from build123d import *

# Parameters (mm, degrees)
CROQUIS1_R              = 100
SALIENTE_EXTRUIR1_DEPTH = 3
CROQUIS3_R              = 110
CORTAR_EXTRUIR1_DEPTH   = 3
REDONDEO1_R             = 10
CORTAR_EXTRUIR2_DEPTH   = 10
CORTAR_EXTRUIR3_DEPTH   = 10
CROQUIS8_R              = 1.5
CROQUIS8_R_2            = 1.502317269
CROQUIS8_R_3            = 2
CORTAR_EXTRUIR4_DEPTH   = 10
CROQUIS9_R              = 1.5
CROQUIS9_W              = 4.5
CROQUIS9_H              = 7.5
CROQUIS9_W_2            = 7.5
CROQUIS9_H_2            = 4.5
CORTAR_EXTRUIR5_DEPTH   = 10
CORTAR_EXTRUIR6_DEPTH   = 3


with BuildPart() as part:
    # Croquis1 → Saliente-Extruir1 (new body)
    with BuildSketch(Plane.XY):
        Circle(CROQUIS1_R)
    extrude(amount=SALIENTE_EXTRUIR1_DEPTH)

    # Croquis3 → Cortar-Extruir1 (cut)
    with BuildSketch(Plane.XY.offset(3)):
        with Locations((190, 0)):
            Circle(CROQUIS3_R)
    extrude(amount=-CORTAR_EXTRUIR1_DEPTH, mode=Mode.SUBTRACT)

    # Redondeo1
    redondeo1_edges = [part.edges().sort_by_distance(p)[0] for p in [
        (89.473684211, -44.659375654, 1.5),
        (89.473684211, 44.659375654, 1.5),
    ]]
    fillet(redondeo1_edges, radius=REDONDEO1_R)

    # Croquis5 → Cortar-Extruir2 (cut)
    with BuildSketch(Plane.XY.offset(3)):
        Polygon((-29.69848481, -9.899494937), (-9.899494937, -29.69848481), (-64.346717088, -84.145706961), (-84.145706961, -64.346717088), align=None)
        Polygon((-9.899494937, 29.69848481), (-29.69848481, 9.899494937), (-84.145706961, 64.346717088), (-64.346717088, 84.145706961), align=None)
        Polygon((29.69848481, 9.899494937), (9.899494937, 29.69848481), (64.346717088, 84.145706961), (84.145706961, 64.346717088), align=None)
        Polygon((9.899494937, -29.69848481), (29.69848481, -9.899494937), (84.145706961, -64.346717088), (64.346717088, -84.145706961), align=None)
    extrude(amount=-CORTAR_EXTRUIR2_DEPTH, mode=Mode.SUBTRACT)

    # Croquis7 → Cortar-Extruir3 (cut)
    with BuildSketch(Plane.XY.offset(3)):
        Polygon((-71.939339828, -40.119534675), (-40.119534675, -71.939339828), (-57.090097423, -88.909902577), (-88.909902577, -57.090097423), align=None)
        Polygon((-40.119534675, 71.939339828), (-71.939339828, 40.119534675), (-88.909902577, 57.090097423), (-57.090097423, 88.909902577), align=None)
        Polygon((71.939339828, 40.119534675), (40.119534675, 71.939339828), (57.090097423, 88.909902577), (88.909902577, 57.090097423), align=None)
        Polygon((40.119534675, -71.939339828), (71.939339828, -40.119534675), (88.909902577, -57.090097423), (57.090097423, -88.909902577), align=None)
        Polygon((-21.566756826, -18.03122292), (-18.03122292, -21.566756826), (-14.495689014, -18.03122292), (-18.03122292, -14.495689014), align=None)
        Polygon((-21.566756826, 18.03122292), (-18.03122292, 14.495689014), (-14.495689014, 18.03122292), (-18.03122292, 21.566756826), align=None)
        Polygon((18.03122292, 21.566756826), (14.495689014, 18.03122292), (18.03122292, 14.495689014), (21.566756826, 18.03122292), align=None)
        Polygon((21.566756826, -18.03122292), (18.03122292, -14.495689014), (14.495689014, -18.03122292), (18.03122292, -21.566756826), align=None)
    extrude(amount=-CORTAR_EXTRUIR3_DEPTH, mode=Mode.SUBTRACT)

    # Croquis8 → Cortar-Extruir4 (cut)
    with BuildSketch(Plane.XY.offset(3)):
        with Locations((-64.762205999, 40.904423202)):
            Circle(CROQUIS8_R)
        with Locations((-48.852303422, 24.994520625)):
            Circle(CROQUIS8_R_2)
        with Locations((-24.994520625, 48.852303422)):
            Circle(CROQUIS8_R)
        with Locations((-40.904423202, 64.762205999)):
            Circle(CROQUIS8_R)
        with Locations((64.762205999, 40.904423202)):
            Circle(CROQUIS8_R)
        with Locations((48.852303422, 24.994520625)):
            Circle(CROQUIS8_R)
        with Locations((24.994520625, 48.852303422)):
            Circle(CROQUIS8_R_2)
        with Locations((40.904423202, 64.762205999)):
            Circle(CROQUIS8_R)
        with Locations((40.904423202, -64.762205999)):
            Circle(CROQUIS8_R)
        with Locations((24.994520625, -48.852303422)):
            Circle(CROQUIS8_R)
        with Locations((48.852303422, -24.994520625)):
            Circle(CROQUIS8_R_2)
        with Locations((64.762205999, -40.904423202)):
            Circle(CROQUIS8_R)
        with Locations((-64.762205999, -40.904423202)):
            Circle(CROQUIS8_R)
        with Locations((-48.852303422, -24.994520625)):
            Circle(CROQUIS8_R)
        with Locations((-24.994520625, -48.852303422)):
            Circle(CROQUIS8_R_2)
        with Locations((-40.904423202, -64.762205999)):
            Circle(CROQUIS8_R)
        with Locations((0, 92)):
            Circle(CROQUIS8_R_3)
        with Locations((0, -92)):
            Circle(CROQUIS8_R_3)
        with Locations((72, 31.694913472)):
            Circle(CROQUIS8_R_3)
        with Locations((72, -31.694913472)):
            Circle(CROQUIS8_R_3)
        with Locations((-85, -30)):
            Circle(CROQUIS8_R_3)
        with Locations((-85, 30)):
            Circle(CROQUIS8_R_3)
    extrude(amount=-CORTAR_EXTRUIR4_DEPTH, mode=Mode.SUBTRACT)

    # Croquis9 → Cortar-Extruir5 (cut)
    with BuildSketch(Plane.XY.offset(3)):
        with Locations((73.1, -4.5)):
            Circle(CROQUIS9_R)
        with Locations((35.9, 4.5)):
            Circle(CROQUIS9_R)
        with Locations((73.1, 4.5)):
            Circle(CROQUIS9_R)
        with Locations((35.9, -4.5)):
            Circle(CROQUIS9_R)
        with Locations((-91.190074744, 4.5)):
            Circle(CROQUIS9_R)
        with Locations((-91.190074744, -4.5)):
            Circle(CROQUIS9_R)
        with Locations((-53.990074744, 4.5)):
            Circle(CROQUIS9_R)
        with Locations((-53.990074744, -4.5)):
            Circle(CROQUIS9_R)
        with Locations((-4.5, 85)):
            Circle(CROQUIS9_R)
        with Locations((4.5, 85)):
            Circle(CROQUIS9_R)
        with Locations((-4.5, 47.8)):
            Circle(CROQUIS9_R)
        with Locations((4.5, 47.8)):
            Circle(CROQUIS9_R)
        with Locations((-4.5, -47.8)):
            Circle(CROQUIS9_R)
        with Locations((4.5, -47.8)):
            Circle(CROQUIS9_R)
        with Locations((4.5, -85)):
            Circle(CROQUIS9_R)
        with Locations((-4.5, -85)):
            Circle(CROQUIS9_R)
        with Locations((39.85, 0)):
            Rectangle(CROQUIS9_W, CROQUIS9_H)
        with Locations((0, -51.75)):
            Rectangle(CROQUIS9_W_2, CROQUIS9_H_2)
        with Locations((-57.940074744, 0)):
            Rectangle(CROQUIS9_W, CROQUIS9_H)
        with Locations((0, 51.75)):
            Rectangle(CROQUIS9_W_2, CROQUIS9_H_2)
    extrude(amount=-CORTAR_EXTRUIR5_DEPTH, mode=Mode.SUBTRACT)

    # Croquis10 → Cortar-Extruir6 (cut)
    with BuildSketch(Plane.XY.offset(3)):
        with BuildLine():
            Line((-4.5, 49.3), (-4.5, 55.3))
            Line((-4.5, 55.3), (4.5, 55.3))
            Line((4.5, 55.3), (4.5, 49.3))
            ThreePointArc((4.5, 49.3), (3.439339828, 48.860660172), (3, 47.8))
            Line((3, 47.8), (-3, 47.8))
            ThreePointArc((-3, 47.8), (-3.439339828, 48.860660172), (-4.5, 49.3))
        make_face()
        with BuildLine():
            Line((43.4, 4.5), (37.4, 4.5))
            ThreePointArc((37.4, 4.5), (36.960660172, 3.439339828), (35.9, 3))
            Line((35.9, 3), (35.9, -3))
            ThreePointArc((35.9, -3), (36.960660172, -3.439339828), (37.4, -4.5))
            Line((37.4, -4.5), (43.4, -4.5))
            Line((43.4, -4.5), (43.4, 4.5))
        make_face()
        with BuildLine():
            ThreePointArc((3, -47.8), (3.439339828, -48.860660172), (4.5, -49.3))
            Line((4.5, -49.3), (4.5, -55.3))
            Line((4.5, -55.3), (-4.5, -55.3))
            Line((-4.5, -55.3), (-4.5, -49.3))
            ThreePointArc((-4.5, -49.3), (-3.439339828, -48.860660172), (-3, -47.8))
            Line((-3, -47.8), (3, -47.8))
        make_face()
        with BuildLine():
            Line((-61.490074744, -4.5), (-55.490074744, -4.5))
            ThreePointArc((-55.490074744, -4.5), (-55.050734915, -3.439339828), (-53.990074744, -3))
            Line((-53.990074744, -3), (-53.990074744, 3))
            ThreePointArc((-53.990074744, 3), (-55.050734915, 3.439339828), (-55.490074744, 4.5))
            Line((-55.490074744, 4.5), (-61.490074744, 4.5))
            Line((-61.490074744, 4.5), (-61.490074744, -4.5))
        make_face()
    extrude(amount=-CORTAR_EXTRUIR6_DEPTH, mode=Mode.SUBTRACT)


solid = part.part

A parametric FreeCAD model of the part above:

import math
import FreeCAD as App
import Part
import Sketcher

V = App.Vector


def edges_at(feature, points):
    """Names of the edges that pass closest to the given points."""
    edges = feature.Shape.Edges
    near = lambda p: min(range(len(edges)), key=lambda i: edges[i].distToShape(Part.Vertex(*p))[0])
    return sorted({f"Edge{near(p) + 1}" for p in points})

doc = App.newDocument("Part")
body = doc.addObject("PartDesign::Body", "Body")

# Sketch on XY plane
sketch1 = body.newObject("Sketcher::SketchObject", "Sketch")
sketch1.AttachmentSupport = (doc.getObject("XY_Plane"), [""])
sketch1.MapMode = "FlatFace"
sketch1.addGeometry(Part.Circle(V(0, 0, 0), V(0, 0, 1), 100), False)
sketch1.addConstraint([
    Sketcher.Constraint("Coincident", 0, 3, -1, 1),
    Sketcher.Constraint("Diameter", 0, 200.0),
])
pad1 = body.newObject("PartDesign::Pad", "Pad")
pad1.Profile = sketch1
pad1.Length = 3

# Sketch on XY plane
sketch2 = body.newObject("Sketcher::SketchObject", "Sketch001")
sketch2.AttachmentSupport = (doc.getObject("XY_Plane"), [""])
sketch2.MapMode = "FlatFace"
sketch2.AttachmentOffset = App.Placement(V(0, 0, 3), App.Rotation())
sketch2.addGeometry(Part.Circle(V(190, 0, 0), V(0, 0, 1), 110), False)
sketch2.addConstraint([
    Sketcher.Constraint("PointOnObject", 0, 3, -1),
    Sketcher.Constraint("Diameter", 0, 220.0),
    Sketcher.Constraint("DistanceX", -1, 1, 0, 3, 190.0),
])
pocket1 = body.newObject("PartDesign::Pocket", "Pocket")
pocket1.Profile = sketch2
pocket1.Length = 3
doc.recompute()

fillet = body.newObject("PartDesign::Fillet", "Fillet")
fillet.Base = (pocket1, edges_at(pocket1, [(89.474, -44.659, 1.5), (89.474, 44.659, 1.5)]))
fillet.Radius = 10

# Sketch on XY plane
sketch3 = body.newObject("Sketcher::SketchObject", "Sketch002")
sketch3.AttachmentSupport = (doc.getObject("XY_Plane"), [""])
sketch3.MapMode = "FlatFace"
sketch3.AttachmentOffset = App.Placement(V(0, 0, 3), App.Rotation())
sketch3.addGeometry([
    Part.LineSegment(V(-10, -30, 0), V(-30, -10, 0)),  # 0
    Part.LineSegment(V(-30, -10, 0), V(-84, -64, 0)),  # 1
    Part.LineSegment(V(-84, -64, 0), V(-64, -84, 0)),  # 2
    Part.LineSegment(V(-64, -84, 0), V(-10, -30, 0)),  # 3
    Part.LineSegment(V(-30, 10, 0), V(-10, 30, 0)),  # 4
    Part.LineSegment(V(-10, 30, 0), V(-64, 84, 0)),  # 5
    Part.LineSegment(V(-64, 84, 0), V(-84, 64, 0)),  # 6
    Part.LineSegment(V(-84, 64, 0), V(-30, 10, 0)),  # 7
    Part.LineSegment(V(10, 30, 0), V(30, 10, 0)),  # 8
    Part.LineSegment(V(30, 10, 0), V(84, 64, 0)),  # 9
    Part.LineSegment(V(84, 64, 0), V(64, 84, 0)),  # 10
    Part.LineSegment(V(64, 84, 0), V(10, 30, 0)),  # 11
    Part.LineSegment(V(30, -10, 0), V(10, -30, 0)),  # 12
    Part.LineSegment(V(10, -30, 0), V(64, -84, 0)),  # 13
    Part.LineSegment(V(64, -84, 0), V(84, -64, 0)),  # 14
    Part.LineSegment(V(84, -64, 0), V(30, -10, 0)),  # 15
], False)
sketch3.addConstraint([
    Sketcher.Constraint("Coincident", 0, 2, 1, 1),
    Sketcher.Constraint("Coincident", 1, 2, 2, 1),
    Sketcher.Constraint("Coincident", 2, 2, 3, 1),
    Sketcher.Constraint("Coincident", 3, 2, 0, 1),
    Sketcher.Constraint("Coincident", 4, 2, 5, 1),
    Sketcher.Constraint("Coincident", 5, 2, 6, 1),
    Sketcher.Constraint("Coincident", 6, 2, 7, 1),
    Sketcher.Constraint("Coincident", 7, 2, 4, 1),
    Sketcher.Constraint("Coincident", 8, 2, 9, 1),
    Sketcher.Constraint("Coincident", 9, 2, 10, 1),
    Sketcher.Constraint("Coincident", 10, 2, 11, 1),
    Sketcher.Constraint("Coincident", 11, 2, 8, 1),
    Sketcher.Constraint("Coincident", 12, 2, 13, 1),
    Sketcher.Constraint("Coincident", 13, 2, 14, 1),
    Sketcher.Constraint("Coincident", 14, 2, 15, 1),
    Sketcher.Constraint("Coincident", 15, 2, 12, 1),
    Sketcher.Constraint("Symmetric", 0, 2, 8, 2, -1, 1),
    Sketcher.Constraint("Symmetric", 1, 2, 9, 2, -1, 1),
    Sketcher.Constraint("Symmetric", 2, 2, 10, 2, -1, 1),
    Sketcher.Constraint("Symmetric", 3, 2, 11, 2, -1, 1),
    Sketcher.Constraint("Symmetric", 4, 2, 12, 2, -1, 1),
    Sketcher.Constraint("Symmetric", 5, 2, 13, 2, -1, 1),
    Sketcher.Constraint("Symmetric", 6, 2, 14, 2, -1, 1),
    Sketcher.Constraint("Symmetric", 7, 2, 15, 2, -1, 1),
    Sketcher.Constraint("Symmetric", 7, 2, 8, 2, -2),
    Sketcher.Constraint("Symmetric", 6, 2, 9, 2, -2),
    Sketcher.Constraint("Symmetric", 5, 2, 10, 2, -2),
    Sketcher.Constraint("Symmetric", 4, 2, 11, 2, -2),
    Sketcher.Constraint("Perpendicular", 0, 1),
    Sketcher.Constraint("Perpendicular", 1, 2),
    Sketcher.Constraint("Perpendicular", 2, 3),
    Sketcher.Constraint("Parallel", 3, 4),
    Sketcher.Constraint("Distance", 0, 28.0),
    Sketcher.Constraint("Distance", 1, 77.0),
    Sketcher.Constraint("DistanceY", 1, 2, 4, 2, 94.045202),
    Sketcher.Constraint("DistanceX", 5, 2, 8, 2, 94.045202),
])
pocket2 = body.newObject("PartDesign::Pocket", "Pocket001")
pocket2.Profile = sketch3
pocket2.Length = 10

# Sketch on XY plane
sketch4 = body.newObject("Sketcher::SketchObject", "Sketch003")
sketch4.AttachmentSupport = (doc.getObject("XY_Plane"), [""])
sketch4.MapMode = "FlatFace"
sketch4.AttachmentOffset = App.Placement(V(0, 0, 3), App.Rotation())
sketch4.addGeometry([
    Part.LineSegment(V(-40, -72, 0), V(-72, -40, 0)),  # 0
    Part.LineSegment(V(-72, -40, 0), V(-89, -57, 0)),  # 1
    Part.LineSegment(V(-89, -57, 0), V(-57, -89, 0)),  # 2
    Part.LineSegment(V(-57, -89, 0), V(-40, -72, 0)),  # 3
    Part.LineSegment(V(-72, 40, 0), V(-40, 72, 0)),  # 4
    Part.LineSegment(V(-40, 72, 0), V(-57, 89, 0)),  # 5
    Part.LineSegment(V(-57, 89, 0), V(-89, 57, 0)),  # 6
    Part.LineSegment(V(-89, 57, 0), V(-72, 40, 0)),  # 7
    Part.LineSegment(V(40, 72, 0), V(72, 40, 0)),  # 8
    Part.LineSegment(V(72, 40, 0), V(89, 57, 0)),  # 9
    Part.LineSegment(V(89, 57, 0), V(57, 89, 0)),  # 10
    Part.LineSegment(V(57, 89, 0), V(40, 72, 0)),  # 11
    Part.LineSegment(V(72, -40, 0), V(40, -72, 0)),  # 12
    Part.LineSegment(V(40, -72, 0), V(57, -89, 0)),  # 13
    Part.LineSegment(V(57, -89, 0), V(89, -57, 0)),  # 14
    Part.LineSegment(V(89, -57, 0), V(72, -40, 0)),  # 15
    Part.LineSegment(V(-22, -18, 0), V(-18, -22, 0)),  # 16
    Part.LineSegment(V(-18, -22, 0), V(-14, -18, 0)),  # 17
    Part.LineSegment(V(-14, -18, 0), V(-18, -14, 0)),  # 18
    Part.LineSegment(V(-18, -14, 0), V(-22, -18, 0)),  # 19
    Part.LineSegment(V(-22, 18, 0), V(-18, 14, 0)),  # 20
    Part.LineSegment(V(-18, 14, 0), V(-14, 18, 0)),  # 21
    Part.LineSegment(V(-14, 18, 0), V(-18, 22, 0)),  # 22
    Part.LineSegment(V(-18, 22, 0), V(-22, 18, 0)),  # 23
    Part.LineSegment(V(18, 22, 0), V(14, 18, 0)),  # 24
    Part.LineSegment(V(14, 18, 0), V(18, 14, 0)),  # 25
    Part.LineSegment(V(18, 14, 0), V(22, 18, 0)),  # 26
    Part.LineSegment(V(22, 18, 0), V(18, 22, 0)),  # 27
    Part.LineSegment(V(22, -18, 0), V(18, -14, 0)),  # 28
    Part.LineSegment(V(18, -14, 0), V(14, -18, 0)),  # 29
    Part.LineSegment(V(14, -18, 0), V(18, -22, 0)),  # 30
    Part.LineSegment(V(18, -22, 0), V(22, -18, 0)),  # 31
], False)
sketch4.addConstraint([
    Sketcher.Constraint("Coincident", 0, 2, 1, 1),
    Sketcher.Constraint("Coincident", 1, 2, 2, 1),
    Sketcher.Constraint("Coincident", 2, 2, 3, 1),
    Sketcher.Constraint("Coincident", 3, 2, 0, 1),
    Sketcher.Constraint("Coincident", 4, 2, 5, 1),
    Sketcher.Constraint("Coincident", 5, 2, 6, 1),
    Sketcher.Constraint("Coincident", 6, 2, 7, 1),
    Sketcher.Constraint("Coincident", 7, 2, 4, 1),
    Sketcher.Constraint("Coincident", 8, 2, 9, 1),
    Sketcher.Constraint("Coincident", 9, 2, 10, 1),
    Sketcher.Constraint("Coincident", 10, 2, 11, 1),
    Sketcher.Constraint("Coincident", 11, 2, 8, 1),
    Sketcher.Constraint("Coincident", 12, 2, 13, 1),
    Sketcher.Constraint("Coincident", 13, 2, 14, 1),
    Sketcher.Constraint("Coincident", 14, 2, 15, 1),
    Sketcher.Constraint("Coincident", 15, 2, 12, 1),
    Sketcher.Constraint("Coincident", 16, 2, 17, 1),
    Sketcher.Constraint("Coincident", 17, 2, 18, 1),
    Sketcher.Constraint("Coincident", 18, 2, 19, 1),
    Sketcher.Constraint("Coincident", 19, 2, 16, 1),
    Sketcher.Constraint("Coincident", 20, 2, 21, 1),
    Sketcher.Constraint("Coincident", 21, 2, 22, 1),
    Sketcher.Constraint("Coincident", 22, 2, 23, 1),
    Sketcher.Constraint("Coincident", 23, 2, 20, 1),
    Sketcher.Constraint("Coincident", 24, 2, 25, 1),
    Sketcher.Constraint("Coincident", 25, 2, 26, 1),
    Sketcher.Constraint("Coincident", 26, 2, 27, 1),
    Sketcher.Constraint("Coincident", 27, 2, 24, 1),
    Sketcher.Constraint("Coincident", 28, 2, 29, 1),
    Sketcher.Constraint("Coincident", 29, 2, 30, 1),
    Sketcher.Constraint("Coincident", 30, 2, 31, 1),
    Sketcher.Constraint("Coincident", 31, 2, 28, 1),
    Sketcher.Constraint("Symmetric", 0, 2, 8, 2, -1, 1),
    Sketcher.Constraint("Symmetric", 1, 2, 9, 2, -1, 1),
    Sketcher.Constraint("Symmetric", 2, 2, 10, 2, -1, 1),
    Sketcher.Constraint("Symmetric", 3, 2, 11, 2, -1, 1),
    Sketcher.Constraint("Symmetric", 4, 2, 12, 2, -1, 1),
    Sketcher.Constraint("Symmetric", 5, 2, 13, 2, -1, 1),
    Sketcher.Constraint("Symmetric", 6, 2, 14, 2, -1, 1),
    Sketcher.Constraint("Symmetric", 7, 2, 15, 2, -1, 1),
    Sketcher.Constraint("Symmetric", 17, 2, 24, 2, -1, 1),
    Sketcher.Constraint("Symmetric", 18, 2, 25, 2, -1, 1),
    Sketcher.Constraint("Symmetric", 19, 2, 26, 2, -1, 1),
    Sketcher.Constraint("Symmetric", 16, 2, 27, 2, -1, 1),
    Sketcher.Constraint("Symmetric", 20, 2, 28, 2, -1, 1),
    Sketcher.Constraint("Symmetric", 21, 2, 29, 2, -1, 1),
    Sketcher.Constraint("Symmetric", 22, 2, 30, 2, -1, 1),
    Sketcher.Constraint("Symmetric", 23, 2, 31, 2, -1, 1),
    Sketcher.Constraint("Symmetric", 7, 2, 8, 2, -2),
    Sketcher.Constraint("Symmetric", 6, 2, 9, 2, -2),
    Sketcher.Constraint("Symmetric", 5, 2, 10, 2, -2),
    Sketcher.Constraint("Symmetric", 4, 2, 11, 2, -2),
    Sketcher.Constraint("Symmetric", 21, 2, 24, 2, -2),
    Sketcher.Constraint("Symmetric", 20, 2, 25, 2, -2),
    Sketcher.Constraint("Symmetric", 23, 2, 26, 2, -2),
    Sketcher.Constraint("Symmetric", 22, 2, 27, 2, -2),
    Sketcher.Constraint("Perpendicular", 0, 1),
    Sketcher.Constraint("Perpendicular", 1, 2),
    Sketcher.Constraint("Perpendicular", 2, 3),
    Sketcher.Constraint("Parallel", 3, 4),
    Sketcher.Constraint("Parallel", 15, 16),
    Sketcher.Constraint("Perpendicular", 16, 17),
    Sketcher.Constraint("Perpendicular", 17, 18),
    Sketcher.Constraint("Perpendicular", 18, 19),
    Sketcher.Constraint("Horizontal", 17, 2, 19, 2),
    Sketcher.Constraint("Distance", 0, 45.0),
    Sketcher.Constraint("Distance", 1, 24.0),
    Sketcher.Constraint("Distance", 16, 5.0),
    Sketcher.Constraint("DistanceY", 1, 2, 5, 2, 146.0),
    Sketcher.Constraint("DistanceX", 5, 2, 9, 2, 146.0),
    Sketcher.Constraint("DistanceX", 17, 2, -1, 1, 14.495689),
    Sketcher.Constraint("DistanceY", 18, 2, -1, 1, 14.495689),
])
pocket3 = body.newObject("PartDesign::Pocket", "Pocket002")
pocket3.Profile = sketch4
pocket3.Length = 10

# Sketch on XY plane
sketch5 = body.newObject("Sketcher::SketchObject", "Sketch004")
sketch5.AttachmentSupport = (doc.getObject("XY_Plane"), [""])
sketch5.MapMode = "FlatFace"
sketch5.AttachmentOffset = App.Placement(V(0, 0, 3), App.Rotation())
sketch5.addGeometry([
    Part.Circle(V(-64.8, 40.9, 0), V(0, 0, 1), 1.5),  # 0
    Part.Circle(V(-48.9, 25, 0), V(0, 0, 1), 1.5),  # 1
    Part.Circle(V(-25, 48.9, 0), V(0, 0, 1), 1.5),  # 2
    Part.Circle(V(-40.9, 64.8, 0), V(0, 0, 1), 1.5),  # 3
    Part.Circle(V(64.8, 40.9, 0), V(0, 0, 1), 1.5),  # 4
    Part.Circle(V(48.9, 25, 0), V(0, 0, 1), 1.5),  # 5
    Part.Circle(V(25, 48.9, 0), V(0, 0, 1), 1.5),  # 6
    Part.Circle(V(40.9, 64.8, 0), V(0, 0, 1), 1.5),  # 7
    Part.Circle(V(40.9, -64.8, 0), V(0, 0, 1), 1.5),  # 8
    Part.Circle(V(25, -48.9, 0), V(0, 0, 1), 1.5),  # 9
    Part.Circle(V(48.9, -25, 0), V(0, 0, 1), 1.5),  # 10
    Part.Circle(V(64.8, -40.9, 0), V(0, 0, 1), 1.5),  # 11
    Part.Circle(V(-64.8, -40.9, 0), V(0, 0, 1), 1.5),  # 12
    Part.Circle(V(-48.9, -25, 0), V(0, 0, 1), 1.5),  # 13
    Part.Circle(V(-25, -48.9, 0), V(0, 0, 1), 1.5),  # 14
    Part.Circle(V(-40.9, -64.8, 0), V(0, 0, 1), 1.5),  # 15
    Part.Circle(V(0, 92, 0), V(0, 0, 1), 2),  # 16
    Part.Circle(V(0, -92, 0), V(0, 0, 1), 2),  # 17
    Part.Circle(V(72, 31.7, 0), V(0, 0, 1), 2),  # 18
    Part.Circle(V(72, -31.7, 0), V(0, 0, 1), 2),  # 19
    Part.Circle(V(-85, -30, 0), V(0, 0, 1), 2),  # 20
    Part.Circle(V(-85, 30, 0), V(0, 0, 1), 2),  # 21
], False)
sketch5.addConstraint([
    Sketcher.Constraint("Equal", 0, 2),
    Sketcher.Constraint("Equal", 2, 3),
    Sketcher.Constraint("Equal", 3, 4),
    Sketcher.Constraint("Equal", 4, 5),
    Sketcher.Constraint("Equal", 1, 6),
    Sketcher.Constraint("Equal", 5, 7),
    Sketcher.Constraint("Equal", 7, 8),
    Sketcher.Constraint("Equal", 8, 9),
    Sketcher.Constraint("Equal", 6, 10),
    Sketcher.Constraint("Equal", 9, 11),
    Sketcher.Constraint("Equal", 11, 12),
    Sketcher.Constraint("Equal", 12, 13),
    Sketcher.Constraint("Equal", 10, 14),
    Sketcher.Constraint("Equal", 13, 15),
    Sketcher.Constraint("Equal", 16, 17),
    Sketcher.Constraint("Equal", 17, 18),
    Sketcher.Constraint("Equal", 18, 19),
    Sketcher.Constraint("Equal", 19, 20),
    Sketcher.Constraint("Equal", 20, 21),
    Sketcher.Constraint("Symmetric", 3, 3, 8, 3, -1, 1),
    Sketcher.Constraint("Symmetric", 2, 3, 9, 3, -1, 1),
    Sketcher.Constraint("Symmetric", 1, 3, 10, 3, -1, 1),
    Sketcher.Constraint("Symmetric", 0, 3, 11, 3, -1, 1),
    Sketcher.Constraint("Symmetric", 4, 3, 12, 3, -1, 1),
    Sketcher.Constraint("Symmetric", 5, 3, 13, 3, -1, 1),
    Sketcher.Constraint("Symmetric", 6, 3, 14, 3, -1, 1),
    Sketcher.Constraint("Symmetric", 7, 3, 15, 3, -1, 1),
    Sketcher.Constraint("Symmetric", 16, 3, 17, 3, -1, 1),
    Sketcher.Constraint("Symmetric", 0, 3, 4, 3, -2),
    Sketcher.Constraint("Symmetric", 1, 3, 5, 3, -2),
    Sketcher.Constraint("Symmetric", 2, 3, 6, 3, -2),
    Sketcher.Constraint("Symmetric", 3, 3, 7, 3, -2),
    Sketcher.Constraint("Symmetric", 18, 3, 19, 3, -1),
    Sketcher.Constraint("Symmetric", 20, 3, 21, 3, -1),
    Sketcher.Constraint("PointOnObject", 16, 3, -2),
    Sketcher.Constraint("Diameter", 0, 3.0),
    Sketcher.Constraint("Diameter", 16, 4.0),
    Sketcher.Constraint("DistanceY", -1, 1, 16, 3, 92.0),
    Sketcher.Constraint("DistanceX", -1, 1, 18, 3, 72.0),
    Sketcher.Constraint("DistanceX", 20, 3, -1, 1, 85.0),
    Sketcher.Constraint("DistanceY", 20, 3, -1, 1, 30.0),
    Sketcher.Constraint("Diameter", 1, 3.004635),
    Sketcher.Constraint("DistanceY", -1, 1, 1, 3, 24.994521),
    Sketcher.Constraint("DistanceX", 2, 3, -1, 1, 24.994521),
    Sketcher.Constraint("DistanceY", 0, 3, 2, 3, 7.94788),
    Sketcher.Constraint("DistanceX", 1, 3, 3, 3, 7.94788),
    Sketcher.Constraint("DistanceX", 3, 3, 4, 3, 105.666629),
    Sketcher.Constraint("DistanceX", 0, 3, 4, 3, 129.524412),
    Sketcher.Constraint("DistanceY", 8, 3, 4, 3, 105.666629),
    Sketcher.Constraint("DistanceY", 8, 3, 7, 3, 129.524412),
    Sketcher.Constraint("DistanceY", 18, 3, 4, 3, 9.20951),
])
pocket4 = body.newObject("PartDesign::Pocket", "Pocket003")
pocket4.Profile = sketch5
pocket4.Length = 10

# Sketch on XY plane
sketch6 = body.newObject("Sketcher::SketchObject", "Sketch005")
sketch6.AttachmentSupport = (doc.getObject("XY_Plane"), [""])
sketch6.MapMode = "FlatFace"
sketch6.AttachmentOffset = App.Placement(V(0, 0, 3), App.Rotation())
sketch6.addGeometry([
    Part.Circle(V(73.1, -4.5, 0), V(0, 0, 1), 1.5),  # 0
    Part.Circle(V(35.9, 4.5, 0), V(0, 0, 1), 1.5),  # 1
    Part.Circle(V(73.1, 4.5, 0), V(0, 0, 1), 1.5),  # 2
    Part.Circle(V(35.9, -4.5, 0), V(0, 0, 1), 1.5),  # 3
    Part.Circle(V(-91.2, 4.5, 0), V(0, 0, 1), 1.5),  # 4
    Part.Circle(V(-91.2, -4.5, 0), V(0, 0, 1), 1.5),  # 5
    Part.Circle(V(-54, 4.5, 0), V(0, 0, 1), 1.5),  # 6
    Part.Circle(V(-54, -4.5, 0), V(0, 0, 1), 1.5),  # 7
    Part.Circle(V(-4.5, 85, 0), V(0, 0, 1), 1.5),  # 8
    Part.Circle(V(4.5, 85, 0), V(0, 0, 1), 1.5),  # 9
    Part.Circle(V(-4.5, 47.8, 0), V(0, 0, 1), 1.5),  # 10
    Part.Circle(V(4.5, 47.8, 0), V(0, 0, 1), 1.5),  # 11
    Part.Circle(V(-4.5, -47.8, 0), V(0, 0, 1), 1.5),  # 12
    Part.Circle(V(4.5, -47.8, 0), V(0, 0, 1), 1.5),  # 13
    Part.Circle(V(4.5, -85, 0), V(0, 0, 1), 1.5),  # 14
    Part.Circle(V(-4.5, -85, 0), V(0, 0, 1), 1.5),  # 15
    Part.LineSegment(V(37.6, 3.8, 0), V(37.6, -3.8, 0)),  # 16
    Part.LineSegment(V(37.6, -3.8, 0), V(42.1, -3.8, 0)),  # 17
    Part.LineSegment(V(42.1, -3.8, 0), V(42.1, 3.8, 0)),  # 18
    Part.LineSegment(V(42.1, 3.8, 0), V(37.6, 3.8, 0)),  # 19
    Part.LineSegment(V(-3.8, -49.5, 0), V(-3.8, -54, 0)),  # 20
    Part.LineSegment(V(-3.8, -54, 0), V(3.8, -54, 0)),  # 21
    Part.LineSegment(V(3.8, -54, 0), V(3.8, -49.5, 0)),  # 22
    Part.LineSegment(V(3.8, -49.5, 0), V(-3.8, -49.5, 0)),  # 23
    Part.LineSegment(V(-60.2, 3.8, 0), V(-60.2, -3.8, 0)),  # 24
    Part.LineSegment(V(-60.2, -3.8, 0), V(-55.7, -3.8, 0)),  # 25
    Part.LineSegment(V(-55.7, -3.8, 0), V(-55.7, 3.8, 0)),  # 26
    Part.LineSegment(V(-55.7, 3.8, 0), V(-60.2, 3.8, 0)),  # 27
    Part.LineSegment(V(-3.8, 54, 0), V(-3.8, 49.5, 0)),  # 28
    Part.LineSegment(V(-3.8, 49.5, 0), V(3.8, 49.5, 0)),  # 29
    Part.LineSegment(V(3.8, 49.5, 0), V(3.8, 54, 0)),  # 30
    Part.LineSegment(V(3.8, 54, 0), V(-3.8, 54, 0)),  # 31
], False)
sketch6.addConstraint([
    Sketcher.Constraint("Coincident", 16, 2, 17, 1),
    Sketcher.Constraint("Coincident", 17, 2, 18, 1),
    Sketcher.Constraint("Coincident", 18, 2, 19, 1),
    Sketcher.Constraint("Coincident", 19, 2, 16, 1),
    Sketcher.Constraint("Coincident", 20, 2, 21, 1),
    Sketcher.Constraint("Coincident", 21, 2, 22, 1),
    Sketcher.Constraint("Coincident", 22, 2, 23, 1),
    Sketcher.Constraint("Coincident", 23, 2, 20, 1),
    Sketcher.Constraint("Coincident", 24, 2, 25, 1),
    Sketcher.Constraint("Coincident", 25, 2, 26, 1),
    Sketcher.Constraint("Coincident", 26, 2, 27, 1),
    Sketcher.Constraint("Coincident", 27, 2, 24, 1),
    Sketcher.Constraint("Coincident", 28, 2, 29, 1),
    Sketcher.Constraint("Coincident", 29, 2, 30, 1),
    Sketcher.Constraint("Coincident", 30, 2, 31, 1),
    Sketcher.Constraint("Coincident", 31, 2, 28, 1),
    Sketcher.Constraint("Vertical", 16),
    Sketcher.Constraint("Horizontal", 17),
    Sketcher.Constraint("Vertical", 18),
    Sketcher.Constraint("Horizontal", 19),
    Sketcher.Constraint("Vertical", 20),
    Sketcher.Constraint("Horizontal", 21),
    Sketcher.Constraint("Vertical", 22),
    Sketcher.Constraint("Horizontal", 23),
    Sketcher.Constraint("Vertical", 24),
    Sketcher.Constraint("Horizontal", 25),
    Sketcher.Constraint("Vertical", 26),
    Sketcher.Constraint("Horizontal", 27),
    Sketcher.Constraint("Vertical", 28),
    Sketcher.Constraint("Horizontal", 29),
    Sketcher.Constraint("Vertical", 30),
    Sketcher.Constraint("Horizontal", 31),
    Sketcher.Constraint("Equal", 0, 1),
    Sketcher.Constraint("Equal", 1, 2),
    Sketcher.Constraint("Equal", 2, 3),
    Sketcher.Constraint("Equal", 3, 4),
    Sketcher.Constraint("Equal", 4, 5),
    Sketcher.Constraint("Equal", 5, 6),
    Sketcher.Constraint("Equal", 6, 7),
    Sketcher.Constraint("Equal", 7, 8),
    Sketcher.Constraint("Equal", 8, 9),
    Sketcher.Constraint("Equal", 9, 10),
    Sketcher.Constraint("Equal", 10, 11),
    Sketcher.Constraint("Equal", 11, 12),
    Sketcher.Constraint("Equal", 12, 13),
    Sketcher.Constraint("Equal", 13, 14),
    Sketcher.Constraint("Equal", 14, 15),
    Sketcher.Constraint("Symmetric", 11, 3, 12, 3, -1, 1),
    Sketcher.Constraint("Symmetric", 10, 3, 13, 3, -1, 1),
    Sketcher.Constraint("Symmetric", 8, 3, 14, 3, -1, 1),
    Sketcher.Constraint("Symmetric", 9, 3, 15, 3, -1, 1),
    Sketcher.Constraint("Symmetric", 22, 2, 28, 2, -1, 1),
    Sketcher.Constraint("Symmetric", 20, 2, 30, 2, -1, 1),
    Sketcher.Constraint("Symmetric", 8, 3, 9, 3, -2),
    Sketcher.Constraint("Symmetric", 10, 3, 11, 3, -2),
    Sketcher.Constraint("Symmetric", 0, 3, 2, 3, -1),
    Sketcher.Constraint("Symmetric", 1, 3, 3, 3, -1),
    Sketcher.Constraint("Symmetric", 4, 3, 5, 3, -1),
    Sketcher.Constraint("Symmetric", 6, 3, 7, 3, -1),
    Sketcher.Constraint("Horizontal", 1, 3, 2, 3),
    Sketcher.Constraint("Horizontal", 2, 3, 4, 3),
    Sketcher.Constraint("Horizontal", 4, 3, 6, 3),
    Sketcher.Constraint("Horizontal", 17, 2, 24, 2),
    Sketcher.Constraint("Horizontal", 19, 2, 26, 2),
    Sketcher.Constraint("Vertical", 8, 3, 10, 3),
    Sketcher.Constraint("Vertical", 23, 2, 28, 2),
    Sketcher.Constraint("Equal", 19, 25),
    Sketcher.Constraint("Equal", 31, 16),
    Sketcher.Constraint("Equal", 27, 20),
    Sketcher.Constraint("Diameter", 0, 3.0),
    Sketcher.Constraint("DistanceX", 17, 1, 17, 2, 4.5),
    Sketcher.Constraint("DistanceX", 21, 1, 21, 2, 7.5),
    Sketcher.Constraint("DistanceY", -1, 1, 8, 3, 85.0),
    Sketcher.Constraint("DistanceY", 20, 2, -1, 1, 54.0),
    Sketcher.Constraint("DistanceY", 0, 3, 1, 3, 9.0),
    Sketcher.Constraint("DistanceX", 8, 3, 9, 3, 9.0),
    Sketcher.Constraint("DistanceX", 17, 2, 0, 3, 31.0),
    Sketcher.Constraint("DistanceX", 5, 3, 24, 2, 31.0),
    Sketcher.Constraint("DistanceX", -1, 1, 0, 3, 73.1),
    Sketcher.Constraint("DistanceX", -1, 1, 1, 3, 35.9),
    Sketcher.Constraint("DistanceY", -1, 1, 10, 3, 47.8),
    Sketcher.Constraint("DistanceX", 4, 3, 6, 3, 37.2),
    Sketcher.Constraint("DistanceY", 16, 2, -1, 1, 3.75),
    Sketcher.Constraint("DistanceX", 4, 3, -1, 1, 91.190075),
])
pocket5 = body.newObject("PartDesign::Pocket", "Pocket004")
pocket5.Profile = sketch6
pocket5.Length = 10

# Sketch on XY plane
sketch7 = body.newObject("Sketcher::SketchObject", "Sketch006")
sketch7.AttachmentSupport = (doc.getObject("XY_Plane"), [""])
sketch7.MapMode = "FlatFace"
sketch7.AttachmentOffset = App.Placement(V(0, 0, 3), App.Rotation())
sketch7.addGeometry([
    Part.LineSegment(V(-4.5, 55.3, 0), V(-4.5, 49.3, 0)),  # 0
    Part.ArcOfCircle(Part.Circle(V(-4.5, 47.8, 0), V(0, 0, 1), 1.5), math.radians(0), math.radians(90)),  # 1
    Part.LineSegment(V(-3, 47.8, 0), V(3, 47.8, 0)),  # 2
    Part.ArcOfCircle(Part.Circle(V(4.5, 47.8, 0), V(0, 0, 1), 1.5), math.radians(90), math.radians(180)),  # 3
    Part.LineSegment(V(4.5, 49.3, 0), V(4.5, 55.3, 0)),  # 4
    Part.LineSegment(V(4.5, 55.3, 0), V(-4.5, 55.3, 0)),  # 5
    Part.LineSegment(V(43.4, 4.5, 0), V(37.4, 4.5, 0)),  # 6
    Part.ArcOfCircle(Part.Circle(V(35.9, 4.5, 0), V(0, 0, 1), 1.5), math.radians(-90), math.radians(0)),  # 7
    Part.LineSegment(V(35.9, 3, 0), V(35.9, -3, 0)),  # 8
    Part.ArcOfCircle(Part.Circle(V(35.9, -4.5, 0), V(0, 0, 1), 1.5), math.radians(0), math.radians(90)),  # 9
    Part.LineSegment(V(37.4, -4.5, 0), V(43.4, -4.5, 0)),  # 10
    Part.LineSegment(V(43.4, -4.5, 0), V(43.4, 4.5, 0)),  # 11
    Part.ArcOfCircle(Part.Circle(V(4.5, -47.8, 0), V(0, 0, 1), 1.5), math.radians(180), math.radians(270)),  # 12
    Part.LineSegment(V(3, -47.8, 0), V(-3, -47.8, 0)),  # 13
    Part.ArcOfCircle(Part.Circle(V(-4.5, -47.8, 0), V(0, 0, 1), 1.5), math.radians(-90), math.radians(0)),  # 14
    Part.LineSegment(V(-4.5, -49.3, 0), V(-4.5, -55.3, 0)),  # 15
    Part.LineSegment(V(-4.5, -55.3, 0), V(4.5, -55.3, 0)),  # 16
    Part.LineSegment(V(4.5, -55.3, 0), V(4.5, -49.3, 0)),  # 17
    Part.LineSegment(V(-61.5, -4.5, 0), V(-55.5, -4.5, 0)),  # 18
    Part.ArcOfCircle(Part.Circle(V(-54, -4.5, 0), V(0, 0, 1), 1.5), math.radians(90), math.radians(180)),  # 19
    Part.LineSegment(V(-54, -3, 0), V(-54, 3, 0)),  # 20
    Part.ArcOfCircle(Part.Circle(V(-54, 4.5, 0), V(0, 0, 1), 1.5), math.radians(-180), math.radians(-90)),  # 21
    Part.LineSegment(V(-55.5, 4.5, 0), V(-61.5, 4.5, 0)),  # 22
    Part.LineSegment(V(-61.5, 4.5, 0), V(-61.5, -4.5, 0)),  # 23
], False)
sketch7.addConstraint([
    Sketcher.Constraint("Coincident", 0, 2, 1, 2),
    Sketcher.Constraint("Coincident", 1, 1, 2, 1),
    Sketcher.Constraint("Coincident", 2, 2, 3, 2),
    Sketcher.Constraint("Coincident", 3, 1, 4, 1),
    Sketcher.Constraint("Coincident", 4, 2, 5, 1),
    Sketcher.Constraint("Coincident", 5, 2, 0, 1),
    Sketcher.Constraint("Coincident", 6, 2, 7, 2),
    Sketcher.Constraint("Coincident", 7, 1, 8, 1),
    Sketcher.Constraint("Coincident", 8, 2, 9, 2),
    Sketcher.Constraint("Coincident", 9, 1, 10, 1),
    Sketcher.Constraint("Coincident", 10, 2, 11, 1),
    Sketcher.Constraint("Coincident", 11, 2, 6, 1),
    Sketcher.Constraint("Coincident", 12, 1, 13, 1),
    Sketcher.Constraint("Coincident", 13, 2, 14, 2),
    Sketcher.Constraint("Coincident", 14, 1, 15, 1),
    Sketcher.Constraint("Coincident", 15, 2, 16, 1),
    Sketcher.Constraint("Coincident", 16, 2, 17, 1),
    Sketcher.Constraint("Coincident", 17, 2, 12, 2),
    Sketcher.Constraint("Coincident", 18, 2, 19, 2),
    Sketcher.Constraint("Coincident", 19, 1, 20, 1),
    Sketcher.Constraint("Coincident", 20, 2, 21, 2),
    Sketcher.Constraint("Coincident", 21, 1, 22, 1),
    Sketcher.Constraint("Coincident", 22, 2, 23, 1),
    Sketcher.Constraint("Coincident", 23, 2, 18, 1),
    Sketcher.Constraint("Vertical", 0),
    Sketcher.Constraint("Horizontal", 2),
    Sketcher.Constraint("Vertical", 4),
    Sketcher.Constraint("Horizontal", 5),
    Sketcher.Constraint("Horizontal", 6),
    Sketcher.Constraint("Vertical", 8),
    Sketcher.Constraint("Horizontal", 10),
    Sketcher.Constraint("Vertical", 11),
    Sketcher.Constraint("Horizontal", 13),
    Sketcher.Constraint("Vertical", 15),
    Sketcher.Constraint("Horizontal", 16),
    Sketcher.Constraint("Vertical", 17),
    Sketcher.Constraint("Horizontal", 18),
    Sketcher.Constraint("Vertical", 20),
    Sketcher.Constraint("Horizontal", 22),
    Sketcher.Constraint("Vertical", 23),
    Sketcher.Constraint("Equal", 1, 3),
    Sketcher.Constraint("Equal", 3, 7),
    Sketcher.Constraint("Equal", 7, 9),
    Sketcher.Constraint("Equal", 9, 12),
    Sketcher.Constraint("Equal", 12, 14),
    Sketcher.Constraint("Equal", 14, 19),
    Sketcher.Constraint("Equal", 19, 21),
    Sketcher.Constraint("Symmetric", 1, 3, 12, 3, -1, 1),
    Sketcher.Constraint("Symmetric", 3, 3, 14, 3, -1, 1),
    Sketcher.Constraint("Symmetric", 4, 2, 15, 2, -1, 1),
    Sketcher.Constraint("Symmetric", 1, 3, 3, 3, -2),
    Sketcher.Constraint("Symmetric", 7, 3, 9, 3, -1),
    Sketcher.Constraint("Symmetric", 19, 3, 21, 3, -1),
    Sketcher.Constraint("Horizontal", 9, 3, 19, 3),
    Sketcher.Constraint("Horizontal", 3, 3, 1, 1),
    Sketcher.Constraint("Horizontal", 21, 3, 6, 2),
    Sketcher.Constraint("Horizontal", 19, 3, 9, 1),
    Sketcher.Constraint("Horizontal", 14, 3, 12, 1),
    Sketcher.Constraint("Horizontal", 10, 2, 18, 2),
    Sketcher.Constraint("Horizontal", 11, 2, 21, 1),
    Sketcher.Constraint("Vertical", 14, 3, 0, 2),
    Sketcher.Constraint("Vertical", 12, 3, 3, 1),
    Sketcher.Constraint("Vertical", 9, 3, 7, 1),
    Sketcher.Constraint("Vertical", 4, 2, 16, 2),
    Sketcher.Constraint("Vertical", 21, 3, 19, 1),
    Sketcher.Constraint("Equal", 2, 6),
    Sketcher.Constraint("Equal", 13, 18),
    Sketcher.Constraint("Equal", 22, 0),
    Sketcher.Constraint("Equal", 4, 8),
    Sketcher.Constraint("Radius", 1, 1.5),
    Sketcher.Constraint("DistanceX", 2, 1, 2, 2, 6.0),
    Sketcher.Constraint("DistanceY", -1, 1, 1, 3, 47.8),
    Sketcher.Constraint("DistanceX", -1, 1, 7, 3, 35.9),
    Sketcher.Constraint("DistanceX", 19, 3, -1, 1, 53.990075),
])
pocket6 = body.newObject("PartDesign::Pocket", "Pocket005")
pocket6.Profile = sketch7
pocket6.Length = 3

doc.recompute()
